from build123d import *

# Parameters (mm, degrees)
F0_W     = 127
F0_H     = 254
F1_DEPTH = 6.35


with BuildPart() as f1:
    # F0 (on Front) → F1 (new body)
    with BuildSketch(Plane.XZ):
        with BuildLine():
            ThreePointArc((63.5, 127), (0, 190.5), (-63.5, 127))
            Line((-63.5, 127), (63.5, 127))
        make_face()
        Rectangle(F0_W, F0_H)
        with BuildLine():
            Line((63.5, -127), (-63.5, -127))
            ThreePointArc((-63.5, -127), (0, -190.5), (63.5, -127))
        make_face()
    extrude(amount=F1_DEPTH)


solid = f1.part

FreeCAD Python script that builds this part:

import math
import FreeCAD as App
import Part
import Sketcher

V = App.Vector
Q = App.Units.Quantity

doc = App.newDocument("Part")
params = doc.addObject("Spreadsheet::Sheet", "Params")
for row, (alias, value) in enumerate([
    ("sketch1_radius", "2.5 in"),
    ("sketch1_height", "10 in"),
    ("pad1_length", "0.25 in"),
], start=1):
    params.set(f"A{row}", alias)
    params.set(f"B{row}", "=" + value)
    params.setAlias(f"B{row}", alias)

body = doc.addObject("PartDesign::Body", "Body")

# Sketch on XZ plane
sketch1 = body.newObject("Sketcher::SketchObject", "Sketch")
sketch1.AttachmentSupport = (doc.getObject("XZ_Plane"), [""])
sketch1.MapMode = "FlatFace"
sketch1.addGeometry([
    Part.ArcOfCircle(Part.Circle(V(0, 127, 0), V(0, 0, 1), 64), math.radians(0), math.radians(180)),
    Part.LineSegment(V(-64, 127, 0), V(-64, -127, 0)),
    Part.ArcOfCircle(Part.Circle(V(0, -127, 0), V(0, 0, 1), 64), math.radians(180), math.radians(360)),
    Part.LineSegment(V(64, -127, 0), V(64, 127, 0)),
], False)
sketch1.addConstraint([
    Sketcher.Constraint("Tangent", 0, 2, 1, 1),
    Sketcher.Constraint("Tangent", 1, 2, 2, 1),
    Sketcher.Constraint("Tangent", 2, 2, 3, 1),
    Sketcher.Constraint("Tangent", 3, 2, 0, 1),
    Sketcher.Constraint("Vertical", 1),
    Sketcher.Constraint("Vertical", 3),
    Sketcher.Constraint("Symmetric", 0, 3, 2, 3, -1, 1),
    Sketcher.Constraint("Radius", 0, Q("2.5 in")),
    Sketcher.Constraint("DistanceY", 1, 2, 1, 1, Q("10 in")),
])
sketch1.setExpression("Constraints[7]", "Params.sketch1_radius")
sketch1.setExpression("Constraints[8]", "Params.sketch1_height")
pad1 = body.newObject("PartDesign::Pad", "Pad")
pad1.Profile = sketch1
pad1.setExpression("Length", "Params.pad1_length")

doc.recompute()
